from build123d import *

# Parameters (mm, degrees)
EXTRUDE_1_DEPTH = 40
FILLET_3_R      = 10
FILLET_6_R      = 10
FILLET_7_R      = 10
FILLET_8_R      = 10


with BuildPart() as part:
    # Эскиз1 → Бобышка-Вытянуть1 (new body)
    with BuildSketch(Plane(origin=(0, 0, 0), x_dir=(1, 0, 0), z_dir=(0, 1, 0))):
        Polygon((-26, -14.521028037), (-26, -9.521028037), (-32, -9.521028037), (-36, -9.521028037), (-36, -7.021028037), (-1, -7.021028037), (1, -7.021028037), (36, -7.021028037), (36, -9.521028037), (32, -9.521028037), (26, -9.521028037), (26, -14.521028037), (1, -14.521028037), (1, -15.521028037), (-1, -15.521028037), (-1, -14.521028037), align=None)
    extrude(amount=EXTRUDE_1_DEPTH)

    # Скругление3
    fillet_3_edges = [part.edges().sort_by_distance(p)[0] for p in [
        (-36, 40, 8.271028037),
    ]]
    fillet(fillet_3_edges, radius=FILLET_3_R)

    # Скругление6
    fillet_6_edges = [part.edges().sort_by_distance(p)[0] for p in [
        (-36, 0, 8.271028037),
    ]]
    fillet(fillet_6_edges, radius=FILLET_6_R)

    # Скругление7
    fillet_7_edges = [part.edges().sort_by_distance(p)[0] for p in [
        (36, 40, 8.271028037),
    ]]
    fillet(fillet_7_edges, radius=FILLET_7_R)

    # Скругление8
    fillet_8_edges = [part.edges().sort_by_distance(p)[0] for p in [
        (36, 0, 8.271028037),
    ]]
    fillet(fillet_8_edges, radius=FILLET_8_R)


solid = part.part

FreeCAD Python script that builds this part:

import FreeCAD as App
import Part
import Sketcher
Q = App.Units.Quantity


def edges_at(feature, points):
    """Names of the edges that pass closest to the given points."""
    edges = feature.Shape.Edges
    near = lambda p: min(range(len(edges)), key=lambda i: edges[i].distToShape(Part.Vertex(*p))[0])
    return sorted({f"Edge{near(p) + 1}" for p in points})

doc = App.newDocument("Part")
params = doc.addObject("Spreadsheet::Sheet", "Params")
for row, (alias, value) in enumerate([
    ("sketch1_width", "25 mm"),
    ("sketch1_width2", "2 mm"),
    ("sketch1_width3", "10 mm"),
    ("sketch1_height", "5 mm"),
    ("sketch1_height2", "1 mm"),
    ("pad1_length", "40 mm"),
    ("fillet_radius", "10 mm"),
    ("fillet2_radius", "10 mm"),
    ("fillet3_radius", "10 mm"),
    ("fillet4_radius", "10 mm"),
], start=1):
    params.set(f"A{row}", alias)
    params.set(f"B{row}", "=" + value)
    params.setAlias(f"B{row}", alias)

body = doc.addObject("PartDesign::Body", "Body")

sketch1 = body.newObject("Sketcher::SketchObject", "Sketch")
sketch1.AttachmentSupport = (doc.getObject("XZ_Plane"), [""])
sketch1.MapMode = "FlatFace"
sketch1.addGeometry([
    Part.LineSegment(App.Vector(-26, 9.5, 0), App.Vector(-26, 14.5, 0)),
    Part.LineSegment(App.Vector(-26, 14.5, 0), App.Vector(-1, 14.5, 0)),
    Part.LineSegment(App.Vector(-1, 14.5, 0), App.Vector(-1, 15.5, 0)),
    Part.LineSegment(App.Vector(-1, 15.5, 0), App.Vector(1, 15.5, 0)),
    Part.LineSegment(App.Vector(1, 15.5, 0), App.Vector(1, 14.5, 0)),
    Part.LineSegment(App.Vector(1, 14.5, 0), App.Vector(26, 14.5, 0)),
    Part.LineSegment(App.Vector(26, 14.5, 0), App.Vector(26, 9.5, 0)),
    Part.LineSegment(App.Vector(26, 9.5, 0), App.Vector(36, 9.5, 0)),
    Part.LineSegment(App.Vector(36, 9.5, 0), App.Vector(36, 7, 0)),
    Part.LineSegment(App.Vector(36, 7, 0), App.Vector(-36, 7, 0)),
    Part.LineSegment(App.Vector(-36, 7, 0), App.Vector(-36, 9.5, 0)),
    Part.LineSegment(App.Vector(-36, 9.5, 0), App.Vector(-26, 9.5, 0)),
], False)
sketch1.addConstraint([
    Sketcher.Constraint("Coincident", 0, 2, 1, 1),
    Sketcher.Constraint("Coincident", 1, 2, 2, 1),
    Sketcher.Constraint("Coincident", 2, 2, 3, 1),
    Sketcher.Constraint("Coincident", 3, 2, 4, 1),
    Sketcher.Constraint("Coincident", 4, 2, 5, 1),
    Sketcher.Constraint("Coincident", 5, 2, 6, 1),
    Sketcher.Constraint("Coincident", 6, 2, 7, 1),
    Sketcher.Constraint("Coincident", 7, 2, 8, 1),
    Sketcher.Constraint("Coincident", 8, 2, 9, 1),
    Sketcher.Constraint("Coincident", 9, 2, 10, 1),
    Sketcher.Constraint("Coincident", 10, 2, 11, 1),
    Sketcher.Constraint("Coincident", 11, 2, 0, 1),
    Sketcher.Constraint("Vertical", 0),
    Sketcher.Constraint("Horizontal", 1),
    Sketcher.Constraint("Vertical", 2),
    Sketcher.Constraint("Horizontal", 3),
    Sketcher.Constraint("Vertical", 4),
    Sketcher.Constraint("Horizontal", 5),
    Sketcher.Constraint("Vertical", 6),
    Sketcher.Constraint("Horizontal", 7),
    Sketcher.Constraint("Vertical", 8),
    Sketcher.Constraint("Horizontal", 9),
    Sketcher.Constraint("Vertical", 10),
    Sketcher.Constraint("Horizontal", 11),
    Sketcher.Constraint("Symmetric", 1, 2, 4, 2, -2),
    Sketcher.Constraint("Symmetric", 7, 2, 10, 2, -2),
    Sketcher.Constraint("Equal", 1, 5),
    Sketcher.Constraint("DistanceX", 1, 1, 1, 2, Q("25 mm")),
    Sketcher.Constraint("DistanceX", 3, 1, 3, 2, Q("2 mm")),
    Sketcher.Constraint("DistanceX", 7, 1, 7, 2, Q("10 mm")),
    Sketcher.Constraint("DistanceY", 0, 1, 0, 2, Q("5 mm")),
    Sketcher.Constraint("DistanceY", 2, 1, 2, 2, Q("1 mm")),
    Sketcher.Constraint("DistanceY", 8, 2, 8, 1, Q("2.5 mm")),
    Sketcher.Constraint("DistanceY", -1, 1, 0, 2, Q("14.521028 mm")),
])
sketch1.setExpression("Constraints[27]", "Params.sketch1_width")
sketch1.setExpression("Constraints[28]", "Params.sketch1_width2")
sketch1.setExpression("Constraints[29]", "Params.sketch1_width3")
sketch1.setExpression("Constraints[30]", "Params.sketch1_height")
sketch1.setExpression("Constraints[31]", "Params.sketch1_height2")
pad1 = body.newObject("PartDesign::Pad", "Pad")
pad1.Profile = sketch1
pad1.setExpression("Length", "Params.pad1_length")
pad1.Reversed = True
doc.recompute()

fillet = body.newObject("PartDesign::Fillet", "Fillet")
fillet.Base = (pad1, edges_at(pad1, [(-36, 40, 8.271)]))
fillet.setExpression("Radius", "Params.fillet_radius")
doc.recompute()

fillet2 = body.newObject("PartDesign::Fillet", "Fillet001")
fillet2.Base = (fillet, edges_at(fillet, [(-36, 0, 8.271)]))
fillet2.setExpression("Radius", "Params.fillet2_radius")
doc.recompute()

fillet3 = body.newObject("PartDesign::Fillet", "Fillet002")
fillet3.Base = (fillet2, edges_at(fillet2, [(36, 40, 8.271)]))
fillet3.setExpression("Radius", "Params.fillet3_radius")
doc.recompute()

fillet4 = body.newObject("PartDesign::Fillet", "Fillet003")
fillet4.Base = (fillet3, edges_at(fillet3, [(36, 0, 8.271)]))
fillet4.setExpression("Radius", "Params.fillet4_radius")

doc.recompute()
